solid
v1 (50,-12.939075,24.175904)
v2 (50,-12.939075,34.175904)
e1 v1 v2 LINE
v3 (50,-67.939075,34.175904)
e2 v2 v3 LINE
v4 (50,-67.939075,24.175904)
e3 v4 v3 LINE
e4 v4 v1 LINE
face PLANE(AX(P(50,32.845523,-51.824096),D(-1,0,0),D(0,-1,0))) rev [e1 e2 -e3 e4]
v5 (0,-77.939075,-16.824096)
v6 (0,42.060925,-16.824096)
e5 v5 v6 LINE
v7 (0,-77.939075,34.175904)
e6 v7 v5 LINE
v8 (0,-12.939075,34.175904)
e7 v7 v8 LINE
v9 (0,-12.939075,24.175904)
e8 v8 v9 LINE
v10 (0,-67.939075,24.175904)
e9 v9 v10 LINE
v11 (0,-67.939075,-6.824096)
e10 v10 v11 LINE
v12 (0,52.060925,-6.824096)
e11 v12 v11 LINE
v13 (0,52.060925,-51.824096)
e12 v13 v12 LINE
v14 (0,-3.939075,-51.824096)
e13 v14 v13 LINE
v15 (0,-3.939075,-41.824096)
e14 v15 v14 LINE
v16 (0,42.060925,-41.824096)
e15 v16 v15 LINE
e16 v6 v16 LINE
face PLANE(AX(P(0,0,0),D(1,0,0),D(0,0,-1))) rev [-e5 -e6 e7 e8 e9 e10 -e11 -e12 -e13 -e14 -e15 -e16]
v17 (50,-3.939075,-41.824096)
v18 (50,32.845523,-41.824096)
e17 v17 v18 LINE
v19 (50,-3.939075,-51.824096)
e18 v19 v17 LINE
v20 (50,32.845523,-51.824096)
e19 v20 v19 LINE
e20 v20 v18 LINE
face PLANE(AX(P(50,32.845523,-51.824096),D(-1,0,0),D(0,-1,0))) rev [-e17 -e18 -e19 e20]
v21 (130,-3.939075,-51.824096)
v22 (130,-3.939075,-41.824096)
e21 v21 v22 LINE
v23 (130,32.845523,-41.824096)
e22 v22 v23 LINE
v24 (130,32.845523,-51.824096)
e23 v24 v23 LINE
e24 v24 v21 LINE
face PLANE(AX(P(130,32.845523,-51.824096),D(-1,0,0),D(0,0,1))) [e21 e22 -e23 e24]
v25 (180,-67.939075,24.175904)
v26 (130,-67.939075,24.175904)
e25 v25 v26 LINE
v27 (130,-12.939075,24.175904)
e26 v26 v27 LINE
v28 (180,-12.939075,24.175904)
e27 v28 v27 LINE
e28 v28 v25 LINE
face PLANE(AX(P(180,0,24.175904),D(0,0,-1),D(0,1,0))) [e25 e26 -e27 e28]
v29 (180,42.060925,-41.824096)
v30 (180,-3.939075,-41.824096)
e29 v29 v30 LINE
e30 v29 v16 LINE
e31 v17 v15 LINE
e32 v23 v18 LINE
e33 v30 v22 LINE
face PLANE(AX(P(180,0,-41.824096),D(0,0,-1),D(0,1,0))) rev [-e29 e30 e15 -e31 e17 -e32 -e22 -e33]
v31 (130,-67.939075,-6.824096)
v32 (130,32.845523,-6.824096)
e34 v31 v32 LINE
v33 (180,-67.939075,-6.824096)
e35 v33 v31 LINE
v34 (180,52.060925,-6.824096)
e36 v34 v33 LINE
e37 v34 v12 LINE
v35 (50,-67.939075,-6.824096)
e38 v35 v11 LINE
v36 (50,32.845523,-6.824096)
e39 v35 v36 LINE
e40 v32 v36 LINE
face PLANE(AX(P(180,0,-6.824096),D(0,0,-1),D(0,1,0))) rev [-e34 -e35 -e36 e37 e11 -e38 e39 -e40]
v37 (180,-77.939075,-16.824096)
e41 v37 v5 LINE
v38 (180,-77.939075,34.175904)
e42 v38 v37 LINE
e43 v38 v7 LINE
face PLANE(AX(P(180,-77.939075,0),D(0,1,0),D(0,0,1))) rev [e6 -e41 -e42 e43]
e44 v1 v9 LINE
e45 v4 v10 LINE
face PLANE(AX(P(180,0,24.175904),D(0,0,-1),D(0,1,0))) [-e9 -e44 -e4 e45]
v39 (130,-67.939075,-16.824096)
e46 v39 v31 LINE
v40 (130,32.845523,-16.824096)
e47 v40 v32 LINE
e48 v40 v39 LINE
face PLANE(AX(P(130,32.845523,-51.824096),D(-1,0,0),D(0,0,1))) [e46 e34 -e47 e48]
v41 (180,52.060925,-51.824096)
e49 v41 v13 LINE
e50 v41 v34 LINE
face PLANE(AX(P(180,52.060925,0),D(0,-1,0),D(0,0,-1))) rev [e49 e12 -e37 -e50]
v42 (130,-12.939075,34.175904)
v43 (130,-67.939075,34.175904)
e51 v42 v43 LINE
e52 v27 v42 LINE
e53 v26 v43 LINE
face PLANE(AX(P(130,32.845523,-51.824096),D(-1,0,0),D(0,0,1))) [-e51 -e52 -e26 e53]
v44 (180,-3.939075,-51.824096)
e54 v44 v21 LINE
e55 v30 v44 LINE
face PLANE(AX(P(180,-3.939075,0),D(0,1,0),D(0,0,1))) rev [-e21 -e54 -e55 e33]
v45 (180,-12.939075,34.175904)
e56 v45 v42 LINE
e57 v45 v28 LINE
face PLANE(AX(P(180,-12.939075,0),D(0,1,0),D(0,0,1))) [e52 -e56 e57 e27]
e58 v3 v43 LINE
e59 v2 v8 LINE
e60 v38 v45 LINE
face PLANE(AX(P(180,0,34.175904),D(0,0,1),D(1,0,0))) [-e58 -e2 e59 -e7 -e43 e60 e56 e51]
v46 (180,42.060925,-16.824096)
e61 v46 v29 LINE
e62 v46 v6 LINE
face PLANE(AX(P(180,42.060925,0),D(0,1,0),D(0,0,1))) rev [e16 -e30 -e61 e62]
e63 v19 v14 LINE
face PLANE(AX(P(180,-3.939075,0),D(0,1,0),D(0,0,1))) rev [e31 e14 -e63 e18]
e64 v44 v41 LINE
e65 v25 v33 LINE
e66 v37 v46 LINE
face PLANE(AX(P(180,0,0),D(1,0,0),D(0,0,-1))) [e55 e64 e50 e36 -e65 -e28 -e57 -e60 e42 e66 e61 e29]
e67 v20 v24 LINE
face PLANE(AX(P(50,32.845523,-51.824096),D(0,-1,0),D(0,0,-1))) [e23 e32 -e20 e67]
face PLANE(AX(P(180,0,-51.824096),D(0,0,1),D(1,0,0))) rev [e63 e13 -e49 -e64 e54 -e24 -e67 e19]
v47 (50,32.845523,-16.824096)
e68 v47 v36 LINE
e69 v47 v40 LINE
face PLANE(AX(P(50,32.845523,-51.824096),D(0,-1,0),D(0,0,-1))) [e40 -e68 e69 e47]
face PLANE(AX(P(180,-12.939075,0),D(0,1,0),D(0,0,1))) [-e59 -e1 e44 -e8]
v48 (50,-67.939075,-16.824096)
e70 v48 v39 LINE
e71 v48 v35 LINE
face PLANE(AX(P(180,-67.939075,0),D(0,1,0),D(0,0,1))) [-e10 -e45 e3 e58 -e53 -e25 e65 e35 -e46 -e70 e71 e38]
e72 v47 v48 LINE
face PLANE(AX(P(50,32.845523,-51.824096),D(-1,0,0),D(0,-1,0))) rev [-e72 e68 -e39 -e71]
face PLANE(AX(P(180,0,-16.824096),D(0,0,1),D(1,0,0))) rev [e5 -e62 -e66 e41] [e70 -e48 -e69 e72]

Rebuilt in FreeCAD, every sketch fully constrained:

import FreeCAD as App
import Part
import Sketcher
from FreeCAD import Vector
Q = App.Units.Quantity


def add_polygon(sketch, points):
    """Adds a closed chain of lines whose ends are joined by coincident constraints."""
    first, n = sketch.GeometryCount, len(points)
    for a, b in zip(points, points[1:] + points[:1]):
        sketch.addGeometry(Part.LineSegment(App.Vector(*a, 0), App.Vector(*b, 0)), False)
    for i in range(n):
        sketch.addConstraint(Sketcher.Constraint("Coincident", first + i, 2, first + (i + 1) % n, 1))

doc = App.newDocument("Part")
body = doc.addObject("PartDesign::Body", "Body")

# Sketch on YZ plane
sketch1 = doc.addObject("Sketcher::SketchObject", "Sketch")
body.addObject(sketch1)
sketch1.AttachmentSupport = (doc.YZ_Plane, [""])
sketch1.MapMode = "FlatFace"
add_polygon(sketch1, [(42, -42), (-4, -42), (-4, -52), (52, -52), (52, -7), (-68, -7), (-68, 24), (-13, 24), (-13, 34), (-78, 34), (-78, -17), (42, -17)])  # lines 0-11
sketch1.addConstraint([
    Sketcher.Constraint("Horizontal", 0),
    Sketcher.Constraint("Vertical", 1),
    Sketcher.Constraint("Horizontal", 2),
    Sketcher.Constraint("Vertical", 3),
    Sketcher.Constraint("Horizontal", 4),
    Sketcher.Constraint("Vertical", 5),
    Sketcher.Constraint("Horizontal", 6),
    Sketcher.Constraint("Vertical", 7),
    Sketcher.Constraint("Horizontal", 8),
    Sketcher.Constraint("Vertical", 9),
    Sketcher.Constraint("Horizontal", 10),
    Sketcher.Constraint("Vertical", 11),
    Sketcher.Constraint("Equal", 4, 10),
    Sketcher.Constraint("Equal", 1, 7),
    Sketcher.Constraint("DistanceX", 0, 2, 0, 1, Q("46 mm")),
    Sketcher.Constraint("DistanceX", 2, 1, 2, 2, Q("56 mm")),
    Sketcher.Constraint("DistanceX", 4, 2, 4, 1, Q("120 mm")),
    Sketcher.Constraint("DistanceX", 6, 1, 6, 2, Q("55 mm")),
    Sketcher.Constraint("DistanceY", 1, 2, 1, 1, Q("10 mm")),
    Sketcher.Constraint("DistanceY", 3, 1, 3, 2, Q("45 mm")),
    Sketcher.Constraint("DistanceY", 5, 1, 5, 2, Q("31 mm")),
    Sketcher.Constraint("DistanceY", 9, 2, 9, 1, Q("51 mm")),
    Sketcher.Constraint("DistanceX", 0, 2, -1, 1, Q("3.939075 mm")),
    Sketcher.Constraint("DistanceY", 0, 2, -1, 1, Q("41.824096 mm")),
])
pad1 = doc.addObject("PartDesign::Pad", "Pad")
body.addObject(pad1)
pad1.Profile = sketch1
pad1.Length = 180

# Sketch on XY plane
sketch2 = doc.addObject("Sketcher::SketchObject", "Sketch001")
body.addObject(sketch2)
sketch2.AttachmentSupport = (doc.XY_Plane, [""])
sketch2.MapMode = "FlatFace"
sketch2.AttachmentOffset = App.Placement(Vector(0, 0, -6.824096), App.Rotation())
add_polygon(sketch2, [(50, 33), (50, -68), (130, -68), (130, 33)])  # lines 0-3
sketch2.addConstraint([
    Sketcher.Constraint("Vertical", 0),
    Sketcher.Constraint("Horizontal", 1),
    Sketcher.Constraint("Vertical", 2),
    Sketcher.Constraint("Horizontal", 3),
    Sketcher.Constraint("DistanceX", 1, 1, 1, 2, Q("80 mm")),
    Sketcher.Constraint("DistanceX", -1, 1, 0, 2, Q("50 mm")),
    Sketcher.Constraint("DistanceY", 0, 2, 0, 1, Q("100.784598 mm")),
    Sketcher.Constraint("DistanceY", 0, 2, -1, 1, Q("67.939075 mm")),
])
pocket1 = doc.addObject("PartDesign::Pocket", "Pocket")
body.addObject(pocket1)
pocket1.Profile = sketch2
pocket1.Type = "ThroughAll"
pocket1.Midplane = True

doc.recompute()
